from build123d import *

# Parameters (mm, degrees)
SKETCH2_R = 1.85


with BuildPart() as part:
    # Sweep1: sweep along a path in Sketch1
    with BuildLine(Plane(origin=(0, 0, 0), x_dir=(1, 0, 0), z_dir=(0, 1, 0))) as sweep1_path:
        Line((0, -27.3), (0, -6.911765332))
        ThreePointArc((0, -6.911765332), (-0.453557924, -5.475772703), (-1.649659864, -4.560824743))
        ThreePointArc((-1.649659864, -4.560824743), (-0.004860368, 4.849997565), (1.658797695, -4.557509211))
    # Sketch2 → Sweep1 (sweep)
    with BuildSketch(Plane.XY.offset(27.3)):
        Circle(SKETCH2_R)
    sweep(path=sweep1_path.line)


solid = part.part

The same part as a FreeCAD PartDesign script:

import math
import FreeCAD as App
import Part
import Sketcher
from FreeCAD import Vector

doc = App.newDocument("Part")
params = doc.addObject("Spreadsheet::Sheet", "Params")
for row, (alias, value) in enumerate([
    ("sketch1_diameter", "3.7 mm"),
    ("sketch2_radius", "2.5 mm"),
    ("sketch2_radius2", "4.85 mm"),
], start=1):
    params.set(f"A{row}", alias)
    params.set(f"B{row}", "=" + value)
    params.setAlias(f"B{row}", alias)

body = doc.addObject("PartDesign::Body", "Body")

sketch1 = body.newObject("Sketcher::SketchObject", "Sketch")
sketch1.AttachmentSupport = (doc.getObject("XY_Plane"), [""])
sketch1.MapMode = "FlatFace"
sketch1.AttachmentOffset = App.Placement(Vector(0, 0, 27.3), App.Rotation())
sketch1.addGeometry(Part.Circle(Vector(0, 0, 0), Vector(0, 0, 1), 1.9), False)
sketch1.addConstraint([
    Sketcher.Constraint("Coincident", 0, 3, -1, 1),
    Sketcher.Constraint("Diameter", 0, 3.7),
])
sketch1.setExpression("Constraints[1]", "Params.sketch1_diameter")

sketch2 = body.newObject("Sketcher::SketchObject", "Sketch001")
sketch2.AttachmentSupport = (doc.getObject("XZ_Plane"), [""])
sketch2.MapMode = "FlatFace"
sketch2.addGeometry([
    Part.LineSegment(Vector(0, 27.3, 0), Vector(0, 6.9, 0)),
    Part.ArcOfCircle(Part.Circle(Vector(-2.5, 6.9, 0), Vector(0, 0, 1), 2.5), math.radians(-70), math.radians(0)),
    Part.ArcOfCircle(Part.Circle(Vector(0, 0, 0), Vector(0, 0, 1), 4.8), math.radians(110), math.radians(430)),
], False)
sketch2.addConstraint([
    Sketcher.Constraint("Tangent", 0, 2, 1, 2),
    Sketcher.Constraint("Tangent", 1, 1, 2, 1),
    Sketcher.Constraint("Vertical", 0),
    Sketcher.Constraint("Coincident", 2, 3, -1, 1),
    Sketcher.Constraint("PointOnObject", 0, 1, -2),
    Sketcher.Constraint("Radius", 1, 2.5),
    Sketcher.Constraint("Radius", 2, 4.85),
    Sketcher.Constraint("DistanceY", -1, 1, 0, 1, 27.3),
    Sketcher.Constraint("DistanceY", -1, 1, 2, 2, 4.557509),
])
sketch2.setExpression("Constraints[5]", "Params.sketch2_radius")
sketch2.setExpression("Constraints[6]", "Params.sketch2_radius2")
doc.recompute()

additivepipe = body.newObject("PartDesign::AdditivePipe", "AdditivePipe")
additivepipe.Profile = sketch1
additivepipe.Spine = (sketch2, ["Edge1", "Edge2", "Edge3"])

doc.recompute()
